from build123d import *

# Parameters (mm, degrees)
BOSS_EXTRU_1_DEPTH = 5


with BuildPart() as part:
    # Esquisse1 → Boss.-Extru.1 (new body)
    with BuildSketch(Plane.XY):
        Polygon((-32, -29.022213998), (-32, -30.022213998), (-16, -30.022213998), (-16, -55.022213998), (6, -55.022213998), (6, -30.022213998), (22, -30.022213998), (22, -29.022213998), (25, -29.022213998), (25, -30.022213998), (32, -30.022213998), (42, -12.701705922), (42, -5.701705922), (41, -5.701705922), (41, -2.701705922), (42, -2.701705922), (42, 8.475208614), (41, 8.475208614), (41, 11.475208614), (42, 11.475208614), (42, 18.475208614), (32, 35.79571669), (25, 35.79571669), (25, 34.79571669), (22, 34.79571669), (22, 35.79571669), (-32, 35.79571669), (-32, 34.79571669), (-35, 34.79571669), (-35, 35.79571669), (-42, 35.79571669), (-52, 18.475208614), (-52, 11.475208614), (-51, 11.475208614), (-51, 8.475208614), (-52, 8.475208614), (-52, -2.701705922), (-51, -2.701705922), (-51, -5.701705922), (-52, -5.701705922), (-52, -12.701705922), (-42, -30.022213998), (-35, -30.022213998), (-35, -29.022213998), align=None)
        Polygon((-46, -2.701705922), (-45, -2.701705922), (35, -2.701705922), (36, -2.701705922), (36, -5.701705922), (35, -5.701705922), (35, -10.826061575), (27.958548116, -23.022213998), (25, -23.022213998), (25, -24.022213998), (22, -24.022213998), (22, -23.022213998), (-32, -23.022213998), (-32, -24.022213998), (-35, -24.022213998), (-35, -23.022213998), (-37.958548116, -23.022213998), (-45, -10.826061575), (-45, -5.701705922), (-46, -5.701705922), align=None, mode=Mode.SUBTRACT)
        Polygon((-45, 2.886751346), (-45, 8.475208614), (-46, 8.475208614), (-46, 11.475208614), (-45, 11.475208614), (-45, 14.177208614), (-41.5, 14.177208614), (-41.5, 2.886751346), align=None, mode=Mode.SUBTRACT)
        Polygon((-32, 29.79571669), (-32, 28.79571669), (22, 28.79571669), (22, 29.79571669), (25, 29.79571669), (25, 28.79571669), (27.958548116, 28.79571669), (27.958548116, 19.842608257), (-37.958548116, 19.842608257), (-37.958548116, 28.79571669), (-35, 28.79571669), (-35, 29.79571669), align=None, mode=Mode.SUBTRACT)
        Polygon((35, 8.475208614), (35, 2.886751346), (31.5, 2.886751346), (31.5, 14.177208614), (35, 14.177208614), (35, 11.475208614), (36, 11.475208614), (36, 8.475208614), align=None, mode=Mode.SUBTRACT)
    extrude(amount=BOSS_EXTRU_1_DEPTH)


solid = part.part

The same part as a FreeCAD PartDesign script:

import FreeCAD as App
import Part
import Sketcher

V = App.Vector
Q = App.Units.Quantity

doc = App.newDocument("Part")
params = doc.addObject("Spreadsheet::Sheet", "Params")
for row, (alias, value) in enumerate([
    ("sketch1_width", "16 mm"),
    ("sketch1_width2", "22 mm"),
    ("sketch1_width3", "3 mm"),
    ("sketch1_width4", "7 mm"),
    ("sketch1_width5", "1 mm"),
    ("pad1_length", "5 mm"),
], start=1):
    params.set(f"A{row}", alias)
    params.set(f"B{row}", "=" + value)
    params.setAlias(f"B{row}", alias)

body = doc.addObject("PartDesign::Body", "Body")

sketch1 = body.newObject("Sketcher::SketchObject", "Sketch")
sketch1.AttachmentSupport = (doc.getObject("XY_Plane"), [""])
sketch1.MapMode = "FlatFace"
sketch1.addGeometry([
    Part.LineSegment(V(-32, -29.022214, 0), V(-32, -30.022214, 0)),
    Part.LineSegment(V(-32, -30.022214, 0), V(-16, -30.022214, 0)),
    Part.LineSegment(V(-16, -30.022214, 0), V(-16, -55.022214, 0)),
    Part.LineSegment(V(-16, -55.022214, 0), V(6, -55.022214, 0)),
    Part.LineSegment(V(6, -55.022214, 0), V(6, -30.022214, 0)),
    Part.LineSegment(V(6, -30.022214, 0), V(22, -30.022214, 0)),
    Part.LineSegment(V(22, -30.022214, 0), V(22, -29.022214, 0)),
    Part.LineSegment(V(22, -29.022214, 0), V(25, -29.022214, 0)),
    Part.LineSegment(V(25, -29.022214, 0), V(25, -30.022214, 0)),
    Part.LineSegment(V(25, -30.022214, 0), V(32, -30.022214, 0)),
    Part.LineSegment(V(32, -30.022214, 0), V(42, -12.701706, 0)),
    Part.LineSegment(V(42, -12.701706, 0), V(42, -5.701706, 0)),
    Part.LineSegment(V(42, -5.701706, 0), V(41, -5.701706, 0)),
    Part.LineSegment(V(41, -5.701706, 0), V(41, -2.701706, 0)),
    Part.LineSegment(V(41, -2.701706, 0), V(42, -2.701706, 0)),
    Part.LineSegment(V(42, -2.701706, 0), V(42, 8.475209, 0)),
    Part.LineSegment(V(42, 8.475209, 0), V(41, 8.475209, 0)),
    Part.LineSegment(V(41, 8.475209, 0), V(41, 11.475209, 0)),
    Part.LineSegment(V(41, 11.475209, 0), V(42, 11.475209, 0)),
    Part.LineSegment(V(42, 11.475209, 0), V(42, 18.475209, 0)),
    Part.LineSegment(V(42, 18.475209, 0), V(32, 35.795717, 0)),
    Part.LineSegment(V(32, 35.795717, 0), V(25, 35.795717, 0)),
    Part.LineSegment(V(25, 35.795717, 0), V(25, 34.795717, 0)),
    Part.LineSegment(V(25, 34.795717, 0), V(22, 34.795717, 0)),
    Part.LineSegment(V(22, 34.795717, 0), V(22, 35.795717, 0)),
    Part.LineSegment(V(22, 35.795717, 0), V(-32, 35.795717, 0)),
    Part.LineSegment(V(-32, 35.795717, 0), V(-32, 34.795717, 0)),
    Part.LineSegment(V(-32, 34.795717, 0), V(-35, 34.795717, 0)),
    Part.LineSegment(V(-35, 34.795717, 0), V(-35, 35.795717, 0)),
    Part.LineSegment(V(-35, 35.795717, 0), V(-42, 35.795717, 0)),
    Part.LineSegment(V(-42, 35.795717, 0), V(-52, 18.475209, 0)),
    Part.LineSegment(V(-52, 18.475209, 0), V(-52, 11.475209, 0)),
    Part.LineSegment(V(-52, 11.475209, 0), V(-51, 11.475209, 0)),
    Part.LineSegment(V(-51, 11.475209, 0), V(-51, 8.475209, 0)),
    Part.LineSegment(V(-51, 8.475209, 0), V(-52, 8.475209, 0)),
    Part.LineSegment(V(-52, 8.475209, 0), V(-52, -2.701706, 0)),
    Part.LineSegment(V(-52, -2.701706, 0), V(-51, -2.701706, 0)),
    Part.LineSegment(V(-51, -2.701706, 0), V(-51, -5.701706, 0)),
    Part.LineSegment(V(-51, -5.701706, 0), V(-52, -5.701706, 0)),
    Part.LineSegment(V(-52, -5.701706, 0), V(-52, -12.701706, 0)),
    Part.LineSegment(V(-52, -12.701706, 0), V(-42, -30.022214, 0)),
    Part.LineSegment(V(-42, -30.022214, 0), V(-35, -30.022214, 0)),
    Part.LineSegment(V(-35, -30.022214, 0), V(-35, -29.022214, 0)),
    Part.LineSegment(V(-35, -29.022214, 0), V(-32, -29.022214, 0)),
    Part.LineSegment(V(-46, -5.701706, 0), V(-46, -2.701706, 0)),
    Part.LineSegment(V(-46, -2.701706, 0), V(36, -2.701706, 0)),
    Part.LineSegment(V(36, -2.701706, 0), V(36, -5.701706, 0)),
    Part.LineSegment(V(36, -5.701706, 0), V(35, -5.701706, 0)),
    Part.LineSegment(V(35, -5.701706, 0), V(35, -10.826062, 0)),
    Part.LineSegment(V(35, -10.826062, 0), V(27.958548, -23.022214, 0)),
    Part.LineSegment(V(27.958548, -23.022214, 0), V(25, -23.022214, 0)),
    Part.LineSegment(V(25, -23.022214, 0), V(25, -24.022214, 0)),
    Part.LineSegment(V(25, -24.022214, 0), V(22, -24.022214, 0)),
    Part.LineSegment(V(22, -24.022214, 0), V(22, -23.022214, 0)),
    Part.LineSegment(V(22, -23.022214, 0), V(-32, -23.022214, 0)),
    Part.LineSegment(V(-32, -23.022214, 0), V(-32, -24.022214, 0)),
    Part.LineSegment(V(-32, -24.022214, 0), V(-35, -24.022214, 0)),
    Part.LineSegment(V(-35, -24.022214, 0), V(-35, -23.022214, 0)),
    Part.LineSegment(V(-35, -23.022214, 0), V(-37.958548, -23.022214, 0)),
    Part.LineSegment(V(-37.958548, -23.022214, 0), V(-45, -10.826062, 0)),
    Part.LineSegment(V(-45, -10.826062, 0), V(-45, -5.701706, 0)),
    Part.LineSegment(V(-45, -5.701706, 0), V(-46, -5.701706, 0)),
    Part.LineSegment(V(-41.5, 2.886751, 0), V(-45, 2.886751, 0)),
    Part.LineSegment(V(-45, 2.886751, 0), V(-45, 8.475209, 0)),
    Part.LineSegment(V(-45, 8.475209, 0), V(-46, 8.475209, 0)),
    Part.LineSegment(V(-46, 8.475209, 0), V(-46, 11.475209, 0)),
    Part.LineSegment(V(-46, 11.475209, 0), V(-45, 11.475209, 0)),
    Part.LineSegment(V(-45, 11.475209, 0), V(-45, 14.177209, 0)),
    Part.LineSegment(V(-45, 14.177209, 0), V(-41.5, 14.177209, 0)),
    Part.LineSegment(V(-41.5, 14.177209, 0), V(-41.5, 2.886751, 0)),
    Part.LineSegment(V(36, 8.475209, 0), V(35, 8.475209, 0)),
    Part.LineSegment(V(35, 8.475209, 0), V(35, 2.886751, 0)),
    Part.LineSegment(V(35, 2.886751, 0), V(31.5, 2.886751, 0)),
    Part.LineSegment(V(31.5, 2.886751, 0), V(31.5, 14.177209, 0)),
    Part.LineSegment(V(31.5, 14.177209, 0), V(35, 14.177209, 0)),
    Part.LineSegment(V(35, 14.177209, 0), V(35, 11.475209, 0)),
    Part.LineSegment(V(35, 11.475209, 0), V(36, 11.475209, 0)),
    Part.LineSegment(V(36, 11.475209, 0), V(36, 8.475209, 0)),
    Part.LineSegment(V(-35, 29.795717, 0), V(-32, 29.795717, 0)),
    Part.LineSegment(V(-32, 29.795717, 0), V(-32, 28.795717, 0)),
    Part.LineSegment(V(-32, 28.795717, 0), V(22, 28.795717, 0)),
    Part.LineSegment(V(22, 28.795717, 0), V(22, 29.795717, 0)),
    Part.LineSegment(V(22, 29.795717, 0), V(25, 29.795717, 0)),
    Part.LineSegment(V(25, 29.795717, 0), V(25, 28.795717, 0)),
    Part.LineSegment(V(25, 28.795717, 0), V(27.958548, 28.795717, 0)),
    Part.LineSegment(V(27.958548, 28.795717, 0), V(27.958548, 19.842608, 0)),
    Part.LineSegment(V(27.958548, 19.842608, 0), V(-37.958548, 19.842608, 0)),
    Part.LineSegment(V(-37.958548, 19.842608, 0), V(-37.958548, 28.795717, 0)),
    Part.LineSegment(V(-37.958548, 28.795717, 0), V(-35, 28.795717, 0)),
    Part.LineSegment(V(-35, 28.795717, 0), V(-35, 29.795717, 0)),
], False)
sketch1.addConstraint([
    Sketcher.Constraint("Coincident", 0, 2, 1, 1),
    Sketcher.Constraint("Coincident", 1, 2, 2, 1),
    Sketcher.Constraint("Coincident", 2, 2, 3, 1),
    Sketcher.Constraint("Coincident", 3, 2, 4, 1),
    Sketcher.Constraint("Coincident", 4, 2, 5, 1),
    Sketcher.Constraint("Coincident", 5, 2, 6, 1),
    Sketcher.Constraint("Coincident", 6, 2, 7, 1),
    Sketcher.Constraint("Coincident", 7, 2, 8, 1),
    Sketcher.Constraint("Coincident", 8, 2, 9, 1),
    Sketcher.Constraint("Coincident", 9, 2, 10, 1),
    Sketcher.Constraint("Coincident", 10, 2, 11, 1),
    Sketcher.Constraint("Coincident", 11, 2, 12, 1),
    Sketcher.Constraint("Coincident", 12, 2, 13, 1),
    Sketcher.Constraint("Coincident", 13, 2, 14, 1),
    Sketcher.Constraint("Coincident", 14, 2, 15, 1),
    Sketcher.Constraint("Coincident", 15, 2, 16, 1),
    Sketcher.Constraint("Coincident", 16, 2, 17, 1),
    Sketcher.Constraint("Coincident", 17, 2, 18, 1),
    Sketcher.Constraint("Coincident", 18, 2, 19, 1),
    Sketcher.Constraint("Coincident", 19, 2, 20, 1),
    Sketcher.Constraint("Coincident", 20, 2, 21, 1),
    Sketcher.Constraint("Coincident", 21, 2, 22, 1),
    Sketcher.Constraint("Coincident", 22, 2, 23, 1),
    Sketcher.Constraint("Coincident", 23, 2, 24, 1),
    Sketcher.Constraint("Coincident", 24, 2, 25, 1),
    Sketcher.Constraint("Coincident", 25, 2, 26, 1),
    Sketcher.Constraint("Coincident", 26, 2, 27, 1),
    Sketcher.Constraint("Coincident", 27, 2, 28, 1),
    Sketcher.Constraint("Coincident", 28, 2, 29, 1),
    Sketcher.Constraint("Coincident", 29, 2, 30, 1),
    Sketcher.Constraint("Coincident", 30, 2, 31, 1),
    Sketcher.Constraint("Coincident", 31, 2, 32, 1),
    Sketcher.Constraint("Coincident", 32, 2, 33, 1),
    Sketcher.Constraint("Coincident", 33, 2, 34, 1),
    Sketcher.Constraint("Coincident", 34, 2, 35, 1),
    Sketcher.Constraint("Coincident", 35, 2, 36, 1),
    Sketcher.Constraint("Coincident", 36, 2, 37, 1),
    Sketcher.Constraint("Coincident", 37, 2, 38, 1),
    Sketcher.Constraint("Coincident", 38, 2, 39, 1),
    Sketcher.Constraint("Coincident", 39, 2, 40, 1),
    Sketcher.Constraint("Coincident", 40, 2, 41, 1),
    Sketcher.Constraint("Coincident", 41, 2, 42, 1),
    Sketcher.Constraint("Coincident", 42, 2, 43, 1),
    Sketcher.Constraint("Coincident", 43, 2, 0, 1),
    Sketcher.Constraint("Coincident", 44, 2, 45, 1),
    Sketcher.Constraint("Coincident", 45, 2, 46, 1),
    Sketcher.Constraint("Coincident", 46, 2, 47, 1),
    Sketcher.Constraint("Coincident", 47, 2, 48, 1),
    Sketcher.Constraint("Coincident", 48, 2, 49, 1),
    Sketcher.Constraint("Coincident", 49, 2, 50, 1),
    Sketcher.Constraint("Coincident", 50, 2, 51, 1),
    Sketcher.Constraint("Coincident", 51, 2, 52, 1),
    Sketcher.Constraint("Coincident", 52, 2, 53, 1),
    Sketcher.Constraint("Coincident", 53, 2, 54, 1),
    Sketcher.Constraint("Coincident", 54, 2, 55, 1),
    Sketcher.Constraint("Coincident", 55, 2, 56, 1),
    Sketcher.Constraint("Coincident", 56, 2, 57, 1),
    Sketcher.Constraint("Coincident", 57, 2, 58, 1),
    Sketcher.Constraint("Coincident", 58, 2, 59, 1),
    Sketcher.Constraint("Coincident", 59, 2, 60, 1),
    Sketcher.Constraint("Coincident", 60, 2, 61, 1),
    Sketcher.Constraint("Coincident", 61, 2, 44, 1),
    Sketcher.Constraint("Coincident", 62, 2, 63, 1),
    Sketcher.Constraint("Coincident", 63, 2, 64, 1),
    Sketcher.Constraint("Coincident", 64, 2, 65, 1),
    Sketcher.Constraint("Coincident", 65, 2, 66, 1),
    Sketcher.Constraint("Coincident", 66, 2, 67, 1),
    Sketcher.Constraint("Coincident", 67, 2, 68, 1),
    Sketcher.Constraint("Coincident", 68, 2, 69, 1),
    Sketcher.Constraint("Coincident", 69, 2, 62, 1),
    Sketcher.Constraint("Coincident", 70, 2, 71, 1),
    Sketcher.Constraint("Coincident", 71, 2, 72, 1),
    Sketcher.Constraint("Coincident", 72, 2, 73, 1),
    Sketcher.Constraint("Coincident", 73, 2, 74, 1),
    Sketcher.Constraint("Coincident", 74, 2, 75, 1),
    Sketcher.Constraint("Coincident", 75, 2, 76, 1),
    Sketcher.Constraint("Coincident", 76, 2, 77, 1),
    Sketcher.Constraint("Coincident", 77, 2, 70, 1),
    Sketcher.Constraint("Coincident", 78, 2, 79, 1),
    Sketcher.Constraint("Coincident", 79, 2, 80, 1),
    Sketcher.Constraint("Coincident", 80, 2, 81, 1),
    Sketcher.Constraint("Coincident", 81, 2, 82, 1),
    Sketcher.Constraint("Coincident", 82, 2, 83, 1),
    Sketcher.Constraint("Coincident", 83, 2, 84, 1),
    Sketcher.Constraint("Coincident", 84, 2, 85, 1),
    Sketcher.Constraint("Coincident", 85, 2, 86, 1),
    Sketcher.Constraint("Coincident", 86, 2, 87, 1),
    Sketcher.Constraint("Coincident", 87, 2, 88, 1),
    Sketcher.Constraint("Coincident", 88, 2, 89, 1),
    Sketcher.Constraint("Coincident", 89, 2, 78, 1),
    Sketcher.Constraint("Vertical", 0),
    Sketcher.Constraint("Horizontal", 1),
    Sketcher.Constraint("Vertical", 2),
    Sketcher.Constraint("Horizontal", 3),
    Sketcher.Constraint("Vertical", 4),
    Sketcher.Constraint("Horizontal", 5),
    Sketcher.Constraint("Vertical", 6),
    Sketcher.Constraint("Horizontal", 7),
    Sketcher.Constraint("Vertical", 8),
    Sketcher.Constraint("Horizontal", 9),
    Sketcher.Constraint("Vertical", 11),
    Sketcher.Constraint("Horizontal", 12),
    Sketcher.Constraint("Vertical", 13),
    Sketcher.Constraint("Horizontal", 14),
    Sketcher.Constraint("Vertical", 15),
    Sketcher.Constraint("Horizontal", 16),
    Sketcher.Constraint("Vertical", 17),
    Sketcher.Constraint("Horizontal", 18),
    Sketcher.Constraint("Vertical", 19),
    Sketcher.Constraint("Horizontal", 21),
    Sketcher.Constraint("Vertical", 22),
    Sketcher.Constraint("Horizontal", 23),
    Sketcher.Constraint("Vertical", 24),
    Sketcher.Constraint("Horizontal", 25),
    Sketcher.Constraint("Vertical", 26),
    Sketcher.Constraint("Horizontal", 27),
    Sketcher.Constraint("Vertical", 28),
    Sketcher.Constraint("Horizontal", 29),
    Sketcher.Constraint("Vertical", 31),
    Sketcher.Constraint("Horizontal", 32),
    Sketcher.Constraint("Vertical", 33),
    Sketcher.Constraint("Horizontal", 34),
    Sketcher.Constraint("Vertical", 35),
    Sketcher.Constraint("Horizontal", 36),
    Sketcher.Constraint("Vertical", 37),
    Sketcher.Constraint("Horizontal", 38),
    Sketcher.Constraint("Vertical", 39),
    Sketcher.Constraint("Horizontal", 41),
    Sketcher.Constraint("Vertical", 42),
    Sketcher.Constraint("Horizontal", 43),
    Sketcher.Constraint("Vertical", 44),
    Sketcher.Constraint("Horizontal", 45),
    Sketcher.Constraint("Vertical", 46),
    Sketcher.Constraint("Horizontal", 47),
    Sketcher.Constraint("Vertical", 48),
    Sketcher.Constraint("Horizontal", 50),
    Sketcher.Constraint("Vertical", 51),
    Sketcher.Constraint("Horizontal", 52),
    Sketcher.Constraint("Vertical", 53),
    Sketcher.Constraint("Horizontal", 54),
    Sketcher.Constraint("Vertical", 55),
    Sketcher.Constraint("Horizontal", 56),
    Sketcher.Constraint("Vertical", 57),
    Sketcher.Constraint("Horizontal", 58),
    Sketcher.Constraint("Vertical", 60),
    Sketcher.Constraint("Horizontal", 61),
    Sketcher.Constraint("Horizontal", 62),
    Sketcher.Constraint("Vertical", 63),
    Sketcher.Constraint("Horizontal", 64),
    Sketcher.Constraint("Vertical", 65),
    Sketcher.Constraint("Horizontal", 66),
    Sketcher.Constraint("Vertical", 67),
    Sketcher.Constraint("Horizontal", 68),
    Sketcher.Constraint("Vertical", 69),
    Sketcher.Constraint("Horizontal", 70),
    Sketcher.Constraint("Vertical", 71),
    Sketcher.Constraint("Horizontal", 72),
    Sketcher.Constraint("Vertical", 73),
    Sketcher.Constraint("Horizontal", 74),
    Sketcher.Constraint("Vertical", 75),
    Sketcher.Constraint("Horizontal", 76),
    Sketcher.Constraint("Vertical", 77),
    Sketcher.Constraint("Horizontal", 78),
    Sketcher.Constraint("Vertical", 79),
    Sketcher.Constraint("Horizontal", 80),
    Sketcher.Constraint("Vertical", 81),
    Sketcher.Constraint("Horizontal", 82),
    Sketcher.Constraint("Vertical", 83),
    Sketcher.Constraint("Horizontal", 84),
    Sketcher.Constraint("Vertical", 85),
    Sketcher.Constraint("Horizontal", 86),
    Sketcher.Constraint("Vertical", 87),
    Sketcher.Constraint("Horizontal", 88),
    Sketcher.Constraint("Vertical", 89),
    Sketcher.Constraint("Symmetric", 0, 2, 9, 2, -2),
    Sketcher.Constraint("Symmetric", 20, 2, 25, 2, -2),
    Sketcher.Constraint("Parallel", 10, 30),
    Sketcher.Constraint("Parallel", 20, 40),
    Sketcher.Constraint("Parallel", 30, 49),
    Sketcher.Constraint("Parallel", 40, 59),
    Sketcher.Constraint("Horizontal", 1, 2, 4, 2),
    Sketcher.Constraint("Horizontal", 23, 2, 26, 2),
    Sketcher.Constraint("Horizontal", 25, 2, 28, 2),
    Sketcher.Constraint("Horizontal", 19, 2, 30, 2),
    Sketcher.Constraint("Horizontal", 18, 2, 31, 2),
    Sketcher.Constraint("Horizontal", 16, 2, 33, 2),
    Sketcher.Constraint("Horizontal", 14, 2, 35, 2),
    Sketcher.Constraint("Horizontal", 12, 2, 37, 2),
    Sketcher.Constraint("Horizontal", 10, 2, 39, 2),
    Sketcher.Constraint("Horizontal", 9, 2, 40, 2),
    Sketcher.Constraint("Horizontal", 7, 2, 42, 2),
    Sketcher.Constraint("Horizontal", 36, 2, 44, 2),
    Sketcher.Constraint("Horizontal", 38, 2, 46, 2),
    Sketcher.Constraint("Horizontal", 50, 2, 53, 2),
    Sketcher.Constraint("Horizontal", 52, 2, 55, 2),
    Sketcher.Constraint("Horizontal", 54, 2, 57, 2),
    Sketcher.Constraint("Horizontal", 48, 2, 59, 2),
    Sketcher.Constraint("Horizontal", 47, 2, 60, 2),
    Sketcher.Constraint("Horizontal", 34, 2, 63, 2),
    Sketcher.Constraint("Horizontal", 32, 2, 65, 2),
    Sketcher.Constraint("Horizontal", 64, 2, 70, 2),
    Sketcher.Constraint("Horizontal", 69, 2, 71, 2),
    Sketcher.Constraint("Horizontal", 68, 2, 73, 2),
    Sketcher.Constraint("Horizontal", 66, 2, 75, 2),
    Sketcher.Constraint("Horizontal", 78, 2, 81, 2),
    Sketcher.Constraint("Horizontal", 80, 2, 83, 2),
    Sketcher.Constraint("Horizontal", 84, 2, 87, 2),
    Sketcher.Constraint("Vertical", 11, 2, 14, 2),
    Sketcher.Constraint("Vertical", 13, 2, 16, 2),
    Sketcher.Constraint("Vertical", 15, 2, 18, 2),
    Sketcher.Constraint("Vertical", 9, 2, 20, 2),
    Sketcher.Constraint("Vertical", 8, 2, 21, 2),
    Sketcher.Constraint("Vertical", 6, 2, 23, 2),
    Sketcher.Constraint("Vertical", 31, 2, 34, 2),
    Sketcher.Constraint("Vertical", 33, 2, 36, 2),
    Sketcher.Constraint("Vertical", 35, 2, 38, 2),
    Sketcher.Constraint("Vertical", 29, 2, 40, 2),
    Sketcher.Constraint("Vertical", 28, 2, 41, 2),
    Sketcher.Constraint("Vertical", 22, 2, 50, 2),
    Sketcher.Constraint("Vertical", 24, 2, 52, 2),
    Sketcher.Constraint("Vertical", 43, 2, 54, 2),
    Sketcher.Constraint("Vertical", 42, 2, 56, 2),
    Sketcher.Constraint("Vertical", 60, 2, 62, 2),
    Sketcher.Constraint("Vertical", 61, 2, 64, 2),
    Sketcher.Constraint("Vertical", 63, 2, 66, 2),
    Sketcher.Constraint("Vertical", 48, 2, 70, 2),
    Sketcher.Constraint("Vertical", 71, 2, 74, 2),
    Sketcher.Constraint("Vertical", 46, 2, 76, 2),
    Sketcher.Constraint("Vertical", 55, 2, 78, 2),
    Sketcher.Constraint("Vertical", 53, 2, 80, 2),
    Sketcher.Constraint("Vertical", 51, 2, 82, 2),
    Sketcher.Constraint("Vertical", 49, 2, 84, 2),
    Sketcher.Constraint("Vertical", 58, 2, 86, 2),
    Sketcher.Constraint("Vertical", 57, 2, 88, 2),
    Sketcher.Constraint("Equal", 1, 5),
    Sketcher.Constraint("Equal", 23, 27),
    Sketcher.Constraint("Equal", 21, 29),
    Sketcher.Constraint("Equal", 18, 32),
    Sketcher.Constraint("Equal", 38, 47),
    Sketcher.Constraint("Equal", 50, 58),
    Sketcher.Constraint("Equal", 47, 61),
    Sketcher.Constraint("Equal", 68, 72),
    Sketcher.Constraint("Equal", 76, 0),
    Sketcher.Constraint("Equal", 41, 11),
    Sketcher.Constraint("Equal", 82, 13),
    Sketcher.Constraint("Equal", 13, 17),
    Sketcher.Constraint("Equal", 11, 19),
    Sketcher.Constraint("Equal", 8, 22),
    Sketcher.Constraint("Equal", 42, 51),
    Sketcher.Constraint("Equal", 57, 79),
    Sketcher.Constraint("DistanceX", 1, 1, 1, 2, Q("16 mm")),
    Sketcher.Constraint("DistanceX", 3, 1, 3, 2, Q("22 mm")),
    Sketcher.Constraint("DistanceX", 7, 1, 7, 2, Q("3 mm")),
    Sketcher.Constraint("DistanceX", 9, 1, 9, 2, Q("7 mm")),
    Sketcher.Constraint("DistanceX", 12, 2, 12, 1, Q("1 mm")),
    Sketcher.Constraint("DistanceX", 45, 1, 45, 2, Q("82 mm")),
    Sketcher.Constraint("DistanceY", 2, 2, 2, 1, Q("25 mm")),
    Sketcher.Constraint("Angle", 10, Q("60 deg")),
    Sketcher.Constraint("Distance", 10, Q("20 mm")),
    Sketcher.Constraint("DistanceX", 62, 2, 62, 1, Q("3.5 mm")),
    Sketcher.Constraint("DistanceY", 67, 1, 67, 2, Q("2.702 mm")),
    Sketcher.Constraint("DistanceX", 50, 2, 50, 1, Q("2.958548 mm")),
    Sketcher.Constraint("DistanceY", 85, 2, 85, 1, Q("8.953108 mm")),
    Sketcher.Constraint("DistanceY", 15, 1, 15, 2, Q("11.176915 mm")),
    Sketcher.Constraint("DistanceY", 48, 2, 48, 1, Q("5.124356 mm")),
    Sketcher.Constraint("DistanceY", 63, 1, 63, 2, Q("5.588457 mm")),
    Sketcher.Constraint("DistanceY", -1, 1, 15, 2, Q("8.475209 mm")),
    Sketcher.Constraint("DistanceY", -1, 1, 85, 2, Q("19.842608 mm")),
])
sketch1.setExpression("Constraints[250]", "Params.sketch1_width")
sketch1.setExpression("Constraints[251]", "Params.sketch1_width2")
sketch1.setExpression("Constraints[252]", "Params.sketch1_width3")
sketch1.setExpression("Constraints[253]", "Params.sketch1_width4")
sketch1.setExpression("Constraints[254]", "Params.sketch1_width5")
pad1 = body.newObject("PartDesign::Pad", "Pad")
pad1.Profile = sketch1
pad1.setExpression("Length", "Params.pad1_length")

doc.recompute()
